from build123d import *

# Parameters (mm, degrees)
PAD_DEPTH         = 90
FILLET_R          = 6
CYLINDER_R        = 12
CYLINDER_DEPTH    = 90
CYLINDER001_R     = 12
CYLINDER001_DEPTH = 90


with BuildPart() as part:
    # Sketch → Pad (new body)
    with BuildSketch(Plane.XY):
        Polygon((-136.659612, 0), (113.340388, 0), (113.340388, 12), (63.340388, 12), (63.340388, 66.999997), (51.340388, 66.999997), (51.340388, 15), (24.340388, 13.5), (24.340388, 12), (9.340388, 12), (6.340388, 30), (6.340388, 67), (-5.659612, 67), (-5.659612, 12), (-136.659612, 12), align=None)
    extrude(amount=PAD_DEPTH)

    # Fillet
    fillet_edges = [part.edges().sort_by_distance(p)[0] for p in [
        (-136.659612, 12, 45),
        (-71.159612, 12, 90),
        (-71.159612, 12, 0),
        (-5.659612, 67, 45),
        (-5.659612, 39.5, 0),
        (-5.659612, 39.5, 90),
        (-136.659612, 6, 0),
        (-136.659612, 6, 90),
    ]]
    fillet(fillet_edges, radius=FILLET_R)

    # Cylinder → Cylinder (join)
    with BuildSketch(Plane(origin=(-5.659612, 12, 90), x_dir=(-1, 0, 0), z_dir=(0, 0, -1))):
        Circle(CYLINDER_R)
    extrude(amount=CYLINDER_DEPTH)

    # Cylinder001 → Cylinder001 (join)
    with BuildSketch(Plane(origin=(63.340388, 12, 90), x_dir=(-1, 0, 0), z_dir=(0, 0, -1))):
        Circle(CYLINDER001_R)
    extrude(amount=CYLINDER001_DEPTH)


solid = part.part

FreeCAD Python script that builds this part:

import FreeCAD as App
import Part
import Sketcher

V = App.Vector


def edges_at(feature, points):
    """Names of the edges that pass closest to the given points."""
    edges = feature.Shape.Edges
    near = lambda p: min(range(len(edges)), key=lambda i: edges[i].distToShape(Part.Vertex(*p))[0])
    return sorted({f"Edge{near(p) + 1}" for p in points})


def add_polygon(sketch, points):
    """Adds a closed chain of lines whose ends are joined by coincident constraints."""
    first, n = sketch.GeometryCount, len(points)
    for a, b in zip(points, points[1:] + points[:1]):
        sketch.addGeometry(Part.LineSegment(App.Vector(*a, 0), App.Vector(*b, 0)), False)
    for i in range(n):
        sketch.addConstraint(Sketcher.Constraint("Coincident", first + i, 2, first + (i + 1) % n, 1))

doc = App.newDocument("Part")
params = doc.addObject("Spreadsheet::Sheet", "Params")
for row, (alias, value) in enumerate([
    ("sketch1_width", "250 mm"),
    ("sketch1_width2", "50 mm"),
    ("sketch1_width3", "12 mm"),
    ("sketch1_width4", "15 mm"),
    ("sketch1_width5", "131 mm"),
    ("pad1_length", "90 mm"),
    ("fillet_radius", "6 mm"),
    ("sketch2_diameter", "24 mm"),
    ("pad2_length", "90 mm"),
    ("sketch3_diameter", "24 mm"),
    ("pad3_length", "90 mm"),
], start=1):
    params.set(f"A{row}", alias)
    params.set(f"B{row}", "=" + value)
    params.setAlias(f"B{row}", alias)

body = doc.addObject("PartDesign::Body", "Body")

# Sketch on XY plane
sketch1 = body.newObject("Sketcher::SketchObject", "Sketch")
sketch1.AttachmentSupport = (doc.getObject("XY_Plane"), [""])
sketch1.MapMode = "FlatFace"
add_polygon(sketch1, [(-136.659612, 0), (113.340388, 0), (113.340388, 12), (63.340388, 12), (63.340388, 66.999997), (51.340388, 66.999997), (51.340388, 15), (24.340388, 13.5), (24.340388, 12), (9.340388, 12), (6.340388, 30), (6.340388, 67), (-5.659612, 67), (-5.659612, 12), (-136.659612, 12)])  # lines 0-14
sketch1.addConstraint([
    Sketcher.Constraint("Horizontal", 0),
    Sketcher.Constraint("Vertical", 1),
    Sketcher.Constraint("Horizontal", 2),
    Sketcher.Constraint("Vertical", 3),
    Sketcher.Constraint("Horizontal", 4),
    Sketcher.Constraint("Vertical", 5),
    Sketcher.Constraint("Vertical", 7),
    Sketcher.Constraint("Horizontal", 8),
    Sketcher.Constraint("Vertical", 10),
    Sketcher.Constraint("Horizontal", 11),
    Sketcher.Constraint("Vertical", 12),
    Sketcher.Constraint("Horizontal", 13),
    Sketcher.Constraint("Vertical", 14),
    Sketcher.Constraint("PointOnObject", 0, 2, -1),
    Sketcher.Constraint("Horizontal", 2, 2, 7, 2),
    Sketcher.Constraint("Horizontal", 8, 2, 12, 2),
    Sketcher.Constraint("Equal", 4, 11),
    Sketcher.Constraint("Equal", 11, 1),
    Sketcher.Constraint("DistanceX", 0, 1, 0, 2, 250.0),
    Sketcher.Constraint("DistanceX", 2, 2, 2, 1, 50.0),
    Sketcher.Constraint("DistanceX", 4, 2, 4, 1, 12.0),
    Sketcher.Constraint("DistanceX", 8, 2, 8, 1, 15.0),
    Sketcher.Constraint("DistanceX", 13, 2, 13, 1, 131.0),
    Sketcher.Constraint("DistanceY", 10, 1, 10, 2, 37.0),
    Sketcher.Constraint("DistanceY", 12, 2, 12, 1, 55.0),
    Sketcher.Constraint("DistanceY", 7, 2, 7, 1, 1.5),
    Sketcher.Constraint("DistanceY", -1, 1, 5, 2, 15.0),
    Sketcher.Constraint("DistanceX", 6, 2, 5, 2, 27.0),
    Sketcher.Constraint("DistanceY", 3, 1, 3, 2, 54.999997),
    Sketcher.Constraint("DistanceX", -1, 1, 0, 2, 113.340388),
])
sketch1.setExpression("Constraints[33]", "Params.sketch1_width")
sketch1.setExpression("Constraints[34]", "Params.sketch1_width2")
sketch1.setExpression("Constraints[35]", "Params.sketch1_width3")
sketch1.setExpression("Constraints[36]", "Params.sketch1_width4")
sketch1.setExpression("Constraints[37]", "Params.sketch1_width5")
pad1 = body.newObject("PartDesign::Pad", "Pad")
pad1.Profile = sketch1
pad1.setExpression("Length", "Params.pad1_length")
doc.recompute()

fillet = body.newObject("PartDesign::Fillet", "Fillet")
fillet.Base = (pad1, edges_at(pad1, [
    (-136.66, 12, 45),
    (-71.16, 12, 90),
    (-71.16, 12, 0),
    (-5.66, 67, 45),
    (-5.66, 39.5, 0),
    (-5.66, 39.5, 90),
    (-136.66, 6, 0),
    (-136.66, 6, 90),
]))
fillet.setExpression("Radius", "Params.fillet_radius")

# Sketch on XY plane
sketch2 = body.newObject("Sketcher::SketchObject", "Sketch001")
sketch2.AttachmentSupport = (doc.getObject("XY_Plane"), [""])
sketch2.MapMode = "FlatFace"
sketch2.AttachmentOffset = App.Placement(V(0, 0, 90), App.Rotation())
sketch2.addGeometry(Part.Circle(V(-5.659612, 12, 0), V(0, 0, 1), 12), False)
sketch2.addConstraint([
    Sketcher.Constraint("Diameter", 0, 24.0),
    Sketcher.Constraint("DistanceY", -1, 1, 0, 3, 12.0),
    Sketcher.Constraint("DistanceX", 0, 3, -1, 1, 5.659612),
])
sketch2.setExpression("Constraints[0]", "Params.sketch2_diameter")
pad2 = body.newObject("PartDesign::Pad", "Pad001")
pad2.Profile = sketch2
pad2.setExpression("Length", "Params.pad2_length")
pad2.Reversed = True

# Sketch on XY plane
sketch3 = body.newObject("Sketcher::SketchObject", "Sketch002")
sketch3.AttachmentSupport = (doc.getObject("XY_Plane"), [""])
sketch3.MapMode = "FlatFace"
sketch3.AttachmentOffset = App.Placement(V(0, 0, 90), App.Rotation())
sketch3.addGeometry(Part.Circle(V(63.340388, 12, 0), V(0, 0, 1), 12), False)
sketch3.addConstraint([
    Sketcher.Constraint("Diameter", 0, 24.0),
    Sketcher.Constraint("DistanceY", -1, 1, 0, 3, 12.0),
    Sketcher.Constraint("DistanceX", -1, 1, 0, 3, 63.340388),
])
sketch3.setExpression("Constraints[0]", "Params.sketch3_diameter")
pad3 = body.newObject("PartDesign::Pad", "Pad002")
pad3.Profile = sketch3
pad3.setExpression("Length", "Params.pad3_length")
pad3.Reversed = True

doc.recompute()
